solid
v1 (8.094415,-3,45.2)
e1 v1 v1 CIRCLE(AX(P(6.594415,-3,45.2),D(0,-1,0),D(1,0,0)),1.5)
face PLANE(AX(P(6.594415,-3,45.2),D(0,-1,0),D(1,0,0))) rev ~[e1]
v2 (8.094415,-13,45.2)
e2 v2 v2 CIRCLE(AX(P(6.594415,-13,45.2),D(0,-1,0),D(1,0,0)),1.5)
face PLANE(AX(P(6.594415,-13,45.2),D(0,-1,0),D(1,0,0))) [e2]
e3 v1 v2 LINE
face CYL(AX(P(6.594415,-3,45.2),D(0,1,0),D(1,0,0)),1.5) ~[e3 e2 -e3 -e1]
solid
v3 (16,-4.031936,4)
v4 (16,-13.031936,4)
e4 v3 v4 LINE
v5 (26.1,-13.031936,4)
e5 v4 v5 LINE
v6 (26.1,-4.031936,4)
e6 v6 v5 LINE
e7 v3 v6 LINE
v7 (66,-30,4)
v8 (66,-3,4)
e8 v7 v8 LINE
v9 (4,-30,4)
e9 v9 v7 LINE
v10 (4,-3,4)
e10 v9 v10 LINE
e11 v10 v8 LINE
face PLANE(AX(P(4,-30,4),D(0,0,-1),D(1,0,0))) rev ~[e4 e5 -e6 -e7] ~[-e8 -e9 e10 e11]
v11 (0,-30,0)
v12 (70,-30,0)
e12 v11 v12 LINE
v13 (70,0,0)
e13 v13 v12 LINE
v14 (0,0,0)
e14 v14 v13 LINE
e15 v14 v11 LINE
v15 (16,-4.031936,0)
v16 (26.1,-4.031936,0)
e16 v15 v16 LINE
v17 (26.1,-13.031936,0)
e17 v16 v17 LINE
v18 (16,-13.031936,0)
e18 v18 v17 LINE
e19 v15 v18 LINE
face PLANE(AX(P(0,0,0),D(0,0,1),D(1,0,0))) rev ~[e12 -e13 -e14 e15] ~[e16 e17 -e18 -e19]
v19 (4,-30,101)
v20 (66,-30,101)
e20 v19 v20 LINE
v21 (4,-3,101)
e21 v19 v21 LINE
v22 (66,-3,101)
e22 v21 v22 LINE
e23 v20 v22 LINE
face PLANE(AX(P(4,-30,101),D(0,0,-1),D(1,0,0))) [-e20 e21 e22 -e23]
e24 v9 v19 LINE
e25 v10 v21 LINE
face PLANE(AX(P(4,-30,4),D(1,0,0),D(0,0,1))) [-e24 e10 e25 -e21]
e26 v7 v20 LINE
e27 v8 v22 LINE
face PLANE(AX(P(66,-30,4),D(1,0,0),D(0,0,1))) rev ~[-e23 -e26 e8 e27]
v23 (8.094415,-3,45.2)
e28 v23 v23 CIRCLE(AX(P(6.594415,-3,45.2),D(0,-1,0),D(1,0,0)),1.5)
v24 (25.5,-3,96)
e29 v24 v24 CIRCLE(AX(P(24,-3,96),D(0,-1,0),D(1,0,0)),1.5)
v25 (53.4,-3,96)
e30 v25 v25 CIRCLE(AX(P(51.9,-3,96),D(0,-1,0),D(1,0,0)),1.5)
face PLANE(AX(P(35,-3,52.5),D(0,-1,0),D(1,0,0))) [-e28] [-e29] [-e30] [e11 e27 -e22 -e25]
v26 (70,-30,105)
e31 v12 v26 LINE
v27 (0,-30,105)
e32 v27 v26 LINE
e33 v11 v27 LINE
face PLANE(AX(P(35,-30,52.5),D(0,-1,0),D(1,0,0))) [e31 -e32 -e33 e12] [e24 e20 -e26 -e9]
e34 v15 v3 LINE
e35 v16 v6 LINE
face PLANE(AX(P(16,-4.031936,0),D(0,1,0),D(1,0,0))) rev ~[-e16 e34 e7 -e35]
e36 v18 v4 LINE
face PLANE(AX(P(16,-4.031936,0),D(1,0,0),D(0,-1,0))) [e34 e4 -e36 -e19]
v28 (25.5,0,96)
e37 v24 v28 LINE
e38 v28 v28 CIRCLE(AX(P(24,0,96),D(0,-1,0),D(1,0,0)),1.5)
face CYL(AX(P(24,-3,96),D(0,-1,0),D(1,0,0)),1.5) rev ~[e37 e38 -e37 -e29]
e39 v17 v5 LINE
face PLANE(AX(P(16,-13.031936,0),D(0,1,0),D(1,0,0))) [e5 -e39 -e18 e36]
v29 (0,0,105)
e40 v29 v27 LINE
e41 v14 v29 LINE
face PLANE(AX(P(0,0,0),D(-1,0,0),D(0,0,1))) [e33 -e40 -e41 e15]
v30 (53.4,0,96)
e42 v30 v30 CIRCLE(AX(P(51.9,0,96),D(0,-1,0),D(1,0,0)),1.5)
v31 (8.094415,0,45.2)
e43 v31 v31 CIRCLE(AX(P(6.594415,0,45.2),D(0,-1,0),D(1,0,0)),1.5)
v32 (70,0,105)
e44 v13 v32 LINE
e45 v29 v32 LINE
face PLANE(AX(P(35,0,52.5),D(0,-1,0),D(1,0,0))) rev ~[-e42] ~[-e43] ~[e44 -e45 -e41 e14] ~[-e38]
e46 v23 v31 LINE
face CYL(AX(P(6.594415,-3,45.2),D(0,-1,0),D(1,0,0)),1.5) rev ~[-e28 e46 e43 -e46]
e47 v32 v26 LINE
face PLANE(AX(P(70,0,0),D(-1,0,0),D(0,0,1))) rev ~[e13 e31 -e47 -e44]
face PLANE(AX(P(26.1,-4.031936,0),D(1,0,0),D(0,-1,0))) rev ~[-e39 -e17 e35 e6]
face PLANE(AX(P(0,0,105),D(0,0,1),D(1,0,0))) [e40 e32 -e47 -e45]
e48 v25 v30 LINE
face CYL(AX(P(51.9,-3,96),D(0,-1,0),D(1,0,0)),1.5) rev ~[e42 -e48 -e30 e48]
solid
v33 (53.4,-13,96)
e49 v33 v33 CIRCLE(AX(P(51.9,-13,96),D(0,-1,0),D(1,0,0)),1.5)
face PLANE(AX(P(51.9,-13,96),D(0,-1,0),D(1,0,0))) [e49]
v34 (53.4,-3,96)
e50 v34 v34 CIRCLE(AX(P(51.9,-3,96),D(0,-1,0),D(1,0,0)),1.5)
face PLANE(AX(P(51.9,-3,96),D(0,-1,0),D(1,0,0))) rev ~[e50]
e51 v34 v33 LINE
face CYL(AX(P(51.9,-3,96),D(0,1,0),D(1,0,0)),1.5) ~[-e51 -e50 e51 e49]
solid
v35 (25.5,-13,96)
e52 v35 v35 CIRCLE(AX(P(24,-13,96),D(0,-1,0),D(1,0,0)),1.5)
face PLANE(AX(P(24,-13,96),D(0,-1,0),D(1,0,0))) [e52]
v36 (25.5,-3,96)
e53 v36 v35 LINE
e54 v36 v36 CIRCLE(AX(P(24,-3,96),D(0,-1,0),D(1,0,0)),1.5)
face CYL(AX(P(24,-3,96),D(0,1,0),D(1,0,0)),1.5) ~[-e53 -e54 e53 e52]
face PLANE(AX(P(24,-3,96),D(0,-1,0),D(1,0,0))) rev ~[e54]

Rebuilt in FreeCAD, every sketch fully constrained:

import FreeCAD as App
import Part
import Sketcher

V = App.Vector
Q = App.Units.Quantity


def add_polygon(sketch, points):
    """Adds a closed chain of lines whose ends are joined by coincident constraints."""
    first, n = sketch.GeometryCount, len(points)
    for a, b in zip(points, points[1:] + points[:1]):
        sketch.addGeometry(Part.LineSegment(App.Vector(*a, 0), App.Vector(*b, 0)), False)
    for i in range(n):
        sketch.addConstraint(Sketcher.Constraint("Coincident", first + i, 2, first + (i + 1) % n, 1))

doc = App.newDocument("Part")
body = doc.addObject("PartDesign::Body", "Body")

# Sketch on XZ plane
sketch1 = body.newObject("Sketcher::SketchObject", "Sketch")
sketch1.AttachmentSupport = (doc.getObject("XZ_Plane"), [""])
sketch1.MapMode = "FlatFace"
add_polygon(sketch1, [(0, 105), (0, 0), (70, 0), (70, 105)])  # lines 0-3
sketch1.addConstraint(Sketcher.Constraint("Vertical", 0))
sketch1.addConstraint(Sketcher.Constraint("Horizontal", 1))
sketch1.addConstraint(Sketcher.Constraint("Vertical", 2))
sketch1.addConstraint(Sketcher.Constraint("Horizontal", 3))
sketch1.addConstraint(Sketcher.Constraint("Coincident", 0, 2, -1, 1))
sketch1.addConstraint(Sketcher.Constraint("DistanceX", 1, 1, 1, 2, Q("70 mm")))
sketch1.addConstraint(Sketcher.Constraint("DistanceY", 0, 2, 0, 1, Q("105 mm")))
pad1 = body.newObject("PartDesign::Pad", "Pad")
pad1.Profile = sketch1
pad1.Length = 30

# Sketch on XZ plane
sketch2 = body.newObject("Sketcher::SketchObject", "Sketch001")
sketch2.AttachmentSupport = (doc.getObject("XZ_Plane"), [""])
sketch2.MapMode = "FlatFace"
sketch2.AttachmentOffset = App.Placement(V(0, 0, 30), App.Rotation())
add_polygon(sketch2, [(4, 101), (4, 4), (66, 4), (66, 101)])  # lines 0-3
sketch2.addConstraint(Sketcher.Constraint("Vertical", 0))
sketch2.addConstraint(Sketcher.Constraint("Horizontal", 1))
sketch2.addConstraint(Sketcher.Constraint("Vertical", 2))
sketch2.addConstraint(Sketcher.Constraint("Horizontal", 3))
sketch2.addConstraint(Sketcher.Constraint("DistanceX", 1, 1, 1, 2, Q("62 mm")))
sketch2.addConstraint(Sketcher.Constraint("DistanceY", 0, 2, 0, 1, Q("97 mm")))
sketch2.addConstraint(Sketcher.Constraint("DistanceX", -1, 1, 0, 2, Q("4 mm")))
sketch2.addConstraint(Sketcher.Constraint("DistanceY", -1, 1, 0, 2, Q("4 mm")))
pocket1 = body.newObject("PartDesign::Pocket", "Pocket")
pocket1.Profile = sketch2
pocket1.Length = 27

# Sketch on XZ plane
sketch3 = body.newObject("Sketcher::SketchObject", "Sketch002")
sketch3.AttachmentSupport = (doc.getObject("XZ_Plane"), [""])
sketch3.MapMode = "FlatFace"
sketch3.AttachmentOffset = App.Placement(V(0, 0, 3), App.Rotation())
sketch3.addGeometry(Part.Circle(V(24, 96, 0), V(0, 0, 1), 1.5), False)
sketch3.addGeometry(Part.Circle(V(51.9, 96, 0), V(0, 0, 1), 1.5), False)
sketch3.addGeometry(Part.Circle(V(6.6, 45.2, 0), V(0, 0, 1), 1.5), False)
sketch3.addConstraint(Sketcher.Constraint("Equal", 0, 1))
sketch3.addConstraint(Sketcher.Constraint("Equal", 1, 2))
sketch3.addConstraint(Sketcher.Constraint("Horizontal", 0, 3, 1, 3))
sketch3.addConstraint(Sketcher.Constraint("Diameter", 0, Q("3 mm")))
sketch3.addConstraint(Sketcher.Constraint("DistanceX", -1, 1, 0, 3, Q("24 mm")))
sketch3.addConstraint(Sketcher.Constraint("DistanceY", -1, 1, 0, 3, Q("96 mm")))
sketch3.addConstraint(Sketcher.Constraint("DistanceX", -1, 1, 1, 3, Q("51.9 mm")))
sketch3.addConstraint(Sketcher.Constraint("DistanceY", -1, 1, 2, 3, Q("45.2 mm")))
sketch3.addConstraint(Sketcher.Constraint("DistanceX", -1, 1, 2, 3, Q("6.594415 mm")))
pocket2 = body.newObject("PartDesign::Pocket", "Pocket001")
pocket2.Profile = sketch3
pocket2.Length = 25

# Sketch on XY plane
sketch4 = body.newObject("Sketcher::SketchObject", "Sketch003")
sketch4.AttachmentSupport = (doc.getObject("XY_Plane"), [""])
sketch4.MapMode = "FlatFace"
add_polygon(sketch4, [(16, -13), (16, -4), (26, -4), (26, -13)])  # lines 0-3
sketch4.addConstraint(Sketcher.Constraint("Vertical", 0))
sketch4.addConstraint(Sketcher.Constraint("Horizontal", 1))
sketch4.addConstraint(Sketcher.Constraint("Vertical", 2))
sketch4.addConstraint(Sketcher.Constraint("Horizontal", 3))
sketch4.addConstraint(Sketcher.Constraint("DistanceY", 0, 1, 0, 2, Q("9 mm")))
sketch4.addConstraint(Sketcher.Constraint("DistanceX", 1, 1, 1, 2, Q("10.1 mm")))
sketch4.addConstraint(Sketcher.Constraint("DistanceX", -1, 1, 0, 2, Q("16 mm")))
sketch4.addConstraint(Sketcher.Constraint("DistanceY", 0, 2, -1, 1, Q("4.031936 mm")))
pocket3 = body.newObject("PartDesign::Pocket", "Pocket002")
pocket3.Profile = sketch4
pocket3.Length = 25
pocket3.Reversed = True

# Sketch on XY plane
sketch5 = body.newObject("Sketcher::SketchObject", "Sketch004")
sketch5.AttachmentSupport = (doc.getObject("XY_Plane"), [""])
sketch5.MapMode = "FlatFace"
add_polygon(sketch5, [(16, -13), (16, -4), (26, -4), (26, -13)])  # lines 0-3
sketch5.addConstraint(Sketcher.Constraint("Vertical", 0))
sketch5.addConstraint(Sketcher.Constraint("Horizontal", 1))
sketch5.addConstraint(Sketcher.Constraint("Vertical", 2))
sketch5.addConstraint(Sketcher.Constraint("Horizontal", 3))
sketch5.addConstraint(Sketcher.Constraint("DistanceY", 0, 1, 0, 2, Q("9 mm")))
sketch5.addConstraint(Sketcher.Constraint("DistanceX", 1, 1, 1, 2, Q("10.1 mm")))
sketch5.addConstraint(Sketcher.Constraint("DistanceX", -1, 1, 0, 2, Q("16 mm")))
sketch5.addConstraint(Sketcher.Constraint("DistanceY", 0, 2, -1, 1, Q("4.031936 mm")))
pocket4 = body.newObject("PartDesign::Pocket", "Pocket003")
pocket4.Profile = sketch5
pocket4.Length = 25
pocket4.Reversed = True
body2 = doc.addObject("PartDesign::Body", "Body001")

# Sketch on XZ plane
sketch6 = body2.newObject("Sketcher::SketchObject", "Sketch005")
sketch6.AttachmentSupport = (doc.getObject("XZ_Plane001"), [""])
sketch6.MapMode = "FlatFace"
sketch6.AttachmentOffset = App.Placement(V(0, 0, 3), App.Rotation())
sketch6.addGeometry(Part.Circle(V(24, 96, 0), V(0, 0, 1), 1.5), False)
sketch6.addConstraint(Sketcher.Constraint("Diameter", 0, Q("3 mm")))
sketch6.addConstraint(Sketcher.Constraint("DistanceX", -1, 1, 0, 3, Q("24 mm")))
sketch6.addConstraint(Sketcher.Constraint("DistanceY", -1, 1, 0, 3, Q("96 mm")))
pad2 = body2.newObject("PartDesign::Pad", "Pad001")
pad2.Profile = sketch6
pad2.Length = 10
body3 = doc.addObject("PartDesign::Body", "Body002")

# Sketch on XZ plane
sketch7 = body3.newObject("Sketcher::SketchObject", "Sketch006")
sketch7.AttachmentSupport = (doc.getObject("XZ_Plane002"), [""])
sketch7.MapMode = "FlatFace"
sketch7.AttachmentOffset = App.Placement(V(0, 0, 3), App.Rotation())
sketch7.addGeometry(Part.Circle(V(51.9, 96, 0), V(0, 0, 1), 1.5), False)
sketch7.addConstraint(Sketcher.Constraint("Diameter", 0, Q("3 mm")))
sketch7.addConstraint(Sketcher.Constraint("DistanceY", -1, 1, 0, 3, Q("96 mm")))
sketch7.addConstraint(Sketcher.Constraint("DistanceX", -1, 1, 0, 3, Q("51.9 mm")))
pad3 = body3.newObject("PartDesign::Pad", "Pad002")
pad3.Profile = sketch7
pad3.Length = 10
body4 = doc.addObject("PartDesign::Body", "Body003")

# Sketch on XZ plane
sketch8 = body4.newObject("Sketcher::SketchObject", "Sketch007")
sketch8.AttachmentSupport = (doc.getObject("XZ_Plane003"), [""])
sketch8.MapMode = "FlatFace"
sketch8.AttachmentOffset = App.Placement(V(0, 0, 3), App.Rotation())
sketch8.addGeometry(Part.Circle(V(6.6, 45.2, 0), V(0, 0, 1), 1.5), False)
sketch8.addConstraint(Sketcher.Constraint("Diameter", 0, Q("3 mm")))
sketch8.addConstraint(Sketcher.Constraint("DistanceY", -1, 1, 0, 3, Q("45.2 mm")))
sketch8.addConstraint(Sketcher.Constraint("DistanceX", -1, 1, 0, 3, Q("6.594415 mm")))
pad4 = body4.newObject("PartDesign::Pad", "Pad003")
pad4.Profile = sketch8
pad4.Length = 10

doc.recompute()
